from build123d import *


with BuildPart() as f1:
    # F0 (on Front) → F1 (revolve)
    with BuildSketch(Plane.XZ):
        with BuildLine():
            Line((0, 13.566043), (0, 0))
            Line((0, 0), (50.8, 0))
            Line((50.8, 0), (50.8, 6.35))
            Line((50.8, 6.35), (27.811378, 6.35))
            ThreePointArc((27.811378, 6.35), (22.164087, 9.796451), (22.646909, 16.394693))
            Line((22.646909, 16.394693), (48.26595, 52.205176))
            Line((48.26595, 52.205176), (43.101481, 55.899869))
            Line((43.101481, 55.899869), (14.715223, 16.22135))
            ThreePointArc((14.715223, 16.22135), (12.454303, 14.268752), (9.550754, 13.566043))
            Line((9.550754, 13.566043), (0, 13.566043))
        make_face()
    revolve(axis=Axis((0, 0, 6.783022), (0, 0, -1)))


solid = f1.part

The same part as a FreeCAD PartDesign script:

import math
import FreeCAD as App
import Part
import Sketcher
Q = App.Units.Quantity

doc = App.newDocument("Part")
body = doc.addObject("PartDesign::Body", "Body")

# Sketch on XZ plane
sketch1 = body.newObject("Sketcher::SketchObject", "Sketch")
sketch1.AttachmentSupport = (doc.getObject("XZ_Plane"), [""])
sketch1.MapMode = "FlatFace"
sketch1.addGeometry([
    Part.LineSegment(App.Vector(0, 13.566043, 0), App.Vector(0, 0, 0)),  # 0
    Part.LineSegment(App.Vector(0, 0, 0), App.Vector(50.8, 0, 0)),  # 1
    Part.LineSegment(App.Vector(50.8, 0, 0), App.Vector(50.8, 6.35, 0)),  # 2
    Part.LineSegment(App.Vector(50.8, 6.35, 0), App.Vector(27.811378, 6.35, 0)),  # 3
    Part.ArcOfCircle(Part.Circle(App.Vector(27.811379, 12.7, 0), App.Vector(0, 0, 1), 6.35), math.radians(144.419842), math.radians(269.999993)),  # 4
    Part.LineSegment(App.Vector(22.646909, 16.394693, 0), App.Vector(48.26595, 52.205176, 0)),  # 5
    Part.LineSegment(App.Vector(48.26595, 52.205176, 0), App.Vector(43.101481, 55.899869, 0)),  # 6
    Part.LineSegment(App.Vector(43.101481, 55.899869, 0), App.Vector(14.715223, 16.22135, 0)),  # 7
    Part.ArcOfCircle(Part.Circle(App.Vector(9.550752, 19.916047, 0), App.Vector(0, 0, 1), 6.350004), math.radians(-89.999981), math.radians(-35.580179)),  # 8
    Part.LineSegment(App.Vector(9.550754, 13.566043, 0), App.Vector(0, 13.566043, 0)),  # 9
], False)
sketch1.addConstraint([
    Sketcher.Constraint("Coincident", 0, 2, 1, 1),
    Sketcher.Constraint("Coincident", 1, 2, 2, 1),
    Sketcher.Constraint("Coincident", 2, 2, 3, 1),
    Sketcher.Constraint("Tangent", 3, 2, 4, 2),
    Sketcher.Constraint("Tangent", 4, 1, 5, 1),
    Sketcher.Constraint("Coincident", 5, 2, 6, 1),
    Sketcher.Constraint("Coincident", 6, 2, 7, 1),
    Sketcher.Constraint("Tangent", 7, 2, 8, 2),
    Sketcher.Constraint("Tangent", 8, 1, 9, 1),
    Sketcher.Constraint("Coincident", 9, 2, 0, 1),
    Sketcher.Constraint("Vertical", 0),
    Sketcher.Constraint("Horizontal", 1),
    Sketcher.Constraint("Vertical", 2),
    Sketcher.Constraint("Horizontal", 3),
    Sketcher.Constraint("Horizontal", 9),
    Sketcher.Constraint("Coincident", 0, 2, -1, 1),
    Sketcher.Constraint("Perpendicular", 5, 6),
    Sketcher.Constraint("Perpendicular", 6, 7),
    Sketcher.Constraint("DistanceX", 1, 1, 1, 2, Q("2 in")),
    Sketcher.Constraint("Radius", 4, Q("0.25 in")),
    Sketcher.Constraint("Radius", 8, Q("0.2500001 in")),
    Sketcher.Constraint("DistanceY", 2, 1, 2, 2, Q("0.25 in")),
    Sketcher.Constraint("Distance", 6, Q("0.25 in")),
    Sketcher.Constraint("DistanceX", 3, 2, 3, 1, Q("22.988622 mm")),
    Sketcher.Constraint("DistanceX", 8, 3, 5, 2, Q("38.715198 mm")),
    Sketcher.Constraint("Distance", 7, Q("48.78693 mm")),
    Sketcher.Constraint("DistanceX", 9, 2, 9, 1, Q("9.550754 mm")),
])
revolution = body.newObject("PartDesign::Revolution", "Revolution")
revolution.Profile = sketch1
revolution.ReferenceAxis = (sketch1, ["V_Axis"])
revolution.Angle = 360

doc.recompute()
